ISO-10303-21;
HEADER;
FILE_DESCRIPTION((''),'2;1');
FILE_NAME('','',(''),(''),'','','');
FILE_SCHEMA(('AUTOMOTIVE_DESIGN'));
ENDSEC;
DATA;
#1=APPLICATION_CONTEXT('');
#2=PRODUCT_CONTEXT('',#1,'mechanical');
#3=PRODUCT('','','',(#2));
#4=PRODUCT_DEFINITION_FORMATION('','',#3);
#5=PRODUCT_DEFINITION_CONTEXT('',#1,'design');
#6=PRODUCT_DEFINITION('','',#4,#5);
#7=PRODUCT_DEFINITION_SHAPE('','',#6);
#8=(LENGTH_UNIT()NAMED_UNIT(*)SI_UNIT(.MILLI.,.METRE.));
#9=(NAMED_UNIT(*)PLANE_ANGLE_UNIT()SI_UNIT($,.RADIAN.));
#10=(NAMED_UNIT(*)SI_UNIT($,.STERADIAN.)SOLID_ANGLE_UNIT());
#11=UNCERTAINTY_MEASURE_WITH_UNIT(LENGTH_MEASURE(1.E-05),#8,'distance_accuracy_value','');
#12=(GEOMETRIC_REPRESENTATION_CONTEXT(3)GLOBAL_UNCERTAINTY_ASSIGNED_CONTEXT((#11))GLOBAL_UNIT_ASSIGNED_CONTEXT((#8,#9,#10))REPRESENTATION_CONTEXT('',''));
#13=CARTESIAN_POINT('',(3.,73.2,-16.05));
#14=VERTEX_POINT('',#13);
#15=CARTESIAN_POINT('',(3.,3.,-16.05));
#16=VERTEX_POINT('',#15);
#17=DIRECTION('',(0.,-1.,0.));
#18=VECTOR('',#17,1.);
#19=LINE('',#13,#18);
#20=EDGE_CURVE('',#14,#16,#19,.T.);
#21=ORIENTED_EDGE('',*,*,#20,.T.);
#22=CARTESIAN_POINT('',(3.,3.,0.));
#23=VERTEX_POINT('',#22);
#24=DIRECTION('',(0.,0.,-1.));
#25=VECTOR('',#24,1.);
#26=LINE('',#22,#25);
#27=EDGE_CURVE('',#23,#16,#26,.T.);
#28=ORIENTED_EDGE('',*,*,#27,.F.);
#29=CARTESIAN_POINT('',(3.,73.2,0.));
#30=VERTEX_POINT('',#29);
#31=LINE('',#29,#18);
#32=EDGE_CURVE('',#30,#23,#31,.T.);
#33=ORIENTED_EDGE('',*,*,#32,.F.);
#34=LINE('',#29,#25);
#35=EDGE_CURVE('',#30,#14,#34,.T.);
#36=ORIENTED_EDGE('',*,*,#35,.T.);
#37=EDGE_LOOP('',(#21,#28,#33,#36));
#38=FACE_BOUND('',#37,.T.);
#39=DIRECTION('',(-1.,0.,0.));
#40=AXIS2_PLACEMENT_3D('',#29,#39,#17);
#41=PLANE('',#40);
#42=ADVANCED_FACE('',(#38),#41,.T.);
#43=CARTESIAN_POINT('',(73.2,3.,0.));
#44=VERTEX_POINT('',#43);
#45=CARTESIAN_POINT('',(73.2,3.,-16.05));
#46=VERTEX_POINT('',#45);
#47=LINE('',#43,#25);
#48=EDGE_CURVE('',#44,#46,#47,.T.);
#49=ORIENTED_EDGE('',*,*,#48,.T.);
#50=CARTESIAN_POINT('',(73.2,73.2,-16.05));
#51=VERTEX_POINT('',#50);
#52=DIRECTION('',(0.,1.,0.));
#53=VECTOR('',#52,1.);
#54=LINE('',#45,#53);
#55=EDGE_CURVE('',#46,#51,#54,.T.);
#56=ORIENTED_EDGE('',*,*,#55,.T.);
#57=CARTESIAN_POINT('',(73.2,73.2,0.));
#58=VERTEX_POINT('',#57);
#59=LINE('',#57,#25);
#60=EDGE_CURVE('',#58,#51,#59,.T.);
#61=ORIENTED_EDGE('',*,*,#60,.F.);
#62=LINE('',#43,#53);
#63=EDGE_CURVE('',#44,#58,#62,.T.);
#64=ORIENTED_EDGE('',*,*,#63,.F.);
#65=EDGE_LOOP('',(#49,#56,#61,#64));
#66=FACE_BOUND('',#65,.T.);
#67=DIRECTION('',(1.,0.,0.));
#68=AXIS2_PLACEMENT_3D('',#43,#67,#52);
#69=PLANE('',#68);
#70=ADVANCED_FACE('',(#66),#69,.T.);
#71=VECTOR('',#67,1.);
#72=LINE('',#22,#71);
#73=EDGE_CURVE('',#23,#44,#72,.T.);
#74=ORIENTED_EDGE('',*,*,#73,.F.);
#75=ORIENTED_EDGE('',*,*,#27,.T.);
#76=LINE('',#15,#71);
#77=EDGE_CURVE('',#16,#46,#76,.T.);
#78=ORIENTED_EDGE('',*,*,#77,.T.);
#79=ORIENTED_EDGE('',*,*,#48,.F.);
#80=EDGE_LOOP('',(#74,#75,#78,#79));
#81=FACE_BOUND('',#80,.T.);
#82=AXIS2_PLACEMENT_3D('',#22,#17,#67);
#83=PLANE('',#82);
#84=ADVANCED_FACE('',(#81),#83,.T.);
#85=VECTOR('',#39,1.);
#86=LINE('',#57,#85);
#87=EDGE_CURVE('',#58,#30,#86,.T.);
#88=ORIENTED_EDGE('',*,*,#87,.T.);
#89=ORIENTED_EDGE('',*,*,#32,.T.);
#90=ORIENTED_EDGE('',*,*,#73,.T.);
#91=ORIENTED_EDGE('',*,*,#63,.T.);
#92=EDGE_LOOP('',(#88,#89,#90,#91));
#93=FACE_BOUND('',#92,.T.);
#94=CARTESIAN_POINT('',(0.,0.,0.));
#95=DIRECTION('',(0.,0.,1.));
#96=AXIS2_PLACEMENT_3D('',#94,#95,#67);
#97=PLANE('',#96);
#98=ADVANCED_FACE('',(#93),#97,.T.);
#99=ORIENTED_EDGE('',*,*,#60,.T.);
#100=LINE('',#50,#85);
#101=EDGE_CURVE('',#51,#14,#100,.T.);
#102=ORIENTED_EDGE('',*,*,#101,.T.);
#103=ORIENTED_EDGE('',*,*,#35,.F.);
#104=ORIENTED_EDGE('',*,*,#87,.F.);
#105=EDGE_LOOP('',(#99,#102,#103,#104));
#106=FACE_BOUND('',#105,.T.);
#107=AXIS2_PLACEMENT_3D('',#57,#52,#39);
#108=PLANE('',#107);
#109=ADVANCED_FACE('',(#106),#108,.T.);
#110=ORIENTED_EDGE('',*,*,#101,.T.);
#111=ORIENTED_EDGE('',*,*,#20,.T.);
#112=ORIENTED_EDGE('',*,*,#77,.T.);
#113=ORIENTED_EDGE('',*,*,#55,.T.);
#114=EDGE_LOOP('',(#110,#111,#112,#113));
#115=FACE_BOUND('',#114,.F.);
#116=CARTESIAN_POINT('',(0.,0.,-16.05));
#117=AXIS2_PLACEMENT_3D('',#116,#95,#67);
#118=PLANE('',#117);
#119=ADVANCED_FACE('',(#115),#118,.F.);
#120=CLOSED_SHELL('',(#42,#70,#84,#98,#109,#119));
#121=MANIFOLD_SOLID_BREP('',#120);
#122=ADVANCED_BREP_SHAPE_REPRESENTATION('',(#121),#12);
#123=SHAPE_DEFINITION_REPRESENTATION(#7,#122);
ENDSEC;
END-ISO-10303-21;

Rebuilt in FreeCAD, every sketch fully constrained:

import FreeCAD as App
import Part
import Sketcher

doc = App.newDocument("Part")
body = doc.addObject("PartDesign::Body", "Body")

# Sketch on XY plane
sketch1 = doc.addObject("Sketcher::SketchObject", "Sketch")
body.addObject(sketch1)
sketch1.AttachmentSupport = (doc.XY_Plane, [""])
sketch1.MapMode = "FlatFace"
sketch1.addGeometry(Part.LineSegment(App.Vector(73, 3, 0), App.Vector(73, 73, 0)), False)
sketch1.addGeometry(Part.LineSegment(App.Vector(73, 73, 0), App.Vector(3, 73, 0)), False)
sketch1.addGeometry(Part.LineSegment(App.Vector(3, 73, 0), App.Vector(3, 3, 0)), False)
sketch1.addGeometry(Part.LineSegment(App.Vector(3, 3, 0), App.Vector(73, 3, 0)), False)
sketch1.addConstraint(Sketcher.Constraint("Coincident", 0, 2, 1, 1))
sketch1.addConstraint(Sketcher.Constraint("Coincident", 1, 2, 2, 1))
sketch1.addConstraint(Sketcher.Constraint("Coincident", 2, 2, 3, 1))
sketch1.addConstraint(Sketcher.Constraint("Coincident", 3, 2, 0, 1))
sketch1.addConstraint(Sketcher.Constraint("Vertical", 0))
sketch1.addConstraint(Sketcher.Constraint("Horizontal", 1))
sketch1.addConstraint(Sketcher.Constraint("Vertical", 2))
sketch1.addConstraint(Sketcher.Constraint("Horizontal", 3))
sketch1.addConstraint(Sketcher.Constraint("Equal", 3, 0))
sketch1.addConstraint(Sketcher.Constraint("DistanceX", -1, 1, 1, 2, 3.0))
sketch1.addConstraint(Sketcher.Constraint("DistanceY", -1, 1, 2, 2, 3.0))
sketch1.addConstraint(Sketcher.Constraint("DistanceX", 1, 2, 1, 1, 70.2))
pad1 = doc.addObject("PartDesign::Pad", "Pad")
body.addObject(pad1)
pad1.Profile = sketch1
pad1.Length = 16.05
pad1.Reversed = True

doc.recompute()
